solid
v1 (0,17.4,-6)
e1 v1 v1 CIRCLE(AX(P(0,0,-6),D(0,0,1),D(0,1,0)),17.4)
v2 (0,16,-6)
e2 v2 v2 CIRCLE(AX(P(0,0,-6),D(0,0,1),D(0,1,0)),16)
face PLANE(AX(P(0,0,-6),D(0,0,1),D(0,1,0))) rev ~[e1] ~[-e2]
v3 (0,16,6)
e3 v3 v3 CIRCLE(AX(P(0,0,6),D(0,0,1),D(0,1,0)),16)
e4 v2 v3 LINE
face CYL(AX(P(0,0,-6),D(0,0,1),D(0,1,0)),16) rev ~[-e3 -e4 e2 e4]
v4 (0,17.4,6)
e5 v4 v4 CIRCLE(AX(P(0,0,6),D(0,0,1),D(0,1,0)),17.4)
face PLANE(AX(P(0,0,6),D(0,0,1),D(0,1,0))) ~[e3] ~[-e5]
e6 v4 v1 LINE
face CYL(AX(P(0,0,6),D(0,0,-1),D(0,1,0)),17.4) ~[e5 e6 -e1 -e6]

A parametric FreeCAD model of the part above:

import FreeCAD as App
import Part
import Sketcher

V = App.Vector


def add_polygon(sketch, points):
    """Adds a closed chain of lines whose ends are joined by coincident constraints."""
    first, n = sketch.GeometryCount, len(points)
    for a, b in zip(points, points[1:] + points[:1]):
        sketch.addGeometry(Part.LineSegment(App.Vector(*a, 0), App.Vector(*b, 0)), False)
    for i in range(n):
        sketch.addConstraint(Sketcher.Constraint("Coincident", first + i, 2, first + (i + 1) % n, 1))

doc = App.newDocument("Part")
body = doc.addObject("PartDesign::Body", "Body")

sketch1 = doc.addObject("Sketcher::SketchObject", "Sketch")
body.addObject(sketch1)
sketch1.AttachmentSupport = (doc.YZ_Plane, [""])
sketch1.MapMode = "FlatFace"
add_polygon(sketch1, [(17.4, 6), (16, 6), (16, -6), (17.4, -6)])
sketch1.addConstraint([
    Sketcher.Constraint("Horizontal", 0),
    Sketcher.Constraint("Vertical", 1),
    Sketcher.Constraint("Horizontal", 2),
    Sketcher.Constraint("Vertical", 3),
    Sketcher.Constraint("DistanceY", 1, 2, 1, 1, 12.0),
    Sketcher.Constraint("DistanceX", 0, 2, 0, 1, 1.4),
    Sketcher.Constraint("DistanceX", -1, 1, 0, 2, 16.0),
    Sketcher.Constraint("DistanceY", -1, 1, 0, 2, 6.0),
])
revolution = doc.addObject("PartDesign::Revolution", "Revolution")
body.addObject(revolution)
revolution.Profile = sketch1
revolution.ReferenceAxis = (sketch1, ["V_Axis"])
revolution.Angle = 360

doc.recompute()
